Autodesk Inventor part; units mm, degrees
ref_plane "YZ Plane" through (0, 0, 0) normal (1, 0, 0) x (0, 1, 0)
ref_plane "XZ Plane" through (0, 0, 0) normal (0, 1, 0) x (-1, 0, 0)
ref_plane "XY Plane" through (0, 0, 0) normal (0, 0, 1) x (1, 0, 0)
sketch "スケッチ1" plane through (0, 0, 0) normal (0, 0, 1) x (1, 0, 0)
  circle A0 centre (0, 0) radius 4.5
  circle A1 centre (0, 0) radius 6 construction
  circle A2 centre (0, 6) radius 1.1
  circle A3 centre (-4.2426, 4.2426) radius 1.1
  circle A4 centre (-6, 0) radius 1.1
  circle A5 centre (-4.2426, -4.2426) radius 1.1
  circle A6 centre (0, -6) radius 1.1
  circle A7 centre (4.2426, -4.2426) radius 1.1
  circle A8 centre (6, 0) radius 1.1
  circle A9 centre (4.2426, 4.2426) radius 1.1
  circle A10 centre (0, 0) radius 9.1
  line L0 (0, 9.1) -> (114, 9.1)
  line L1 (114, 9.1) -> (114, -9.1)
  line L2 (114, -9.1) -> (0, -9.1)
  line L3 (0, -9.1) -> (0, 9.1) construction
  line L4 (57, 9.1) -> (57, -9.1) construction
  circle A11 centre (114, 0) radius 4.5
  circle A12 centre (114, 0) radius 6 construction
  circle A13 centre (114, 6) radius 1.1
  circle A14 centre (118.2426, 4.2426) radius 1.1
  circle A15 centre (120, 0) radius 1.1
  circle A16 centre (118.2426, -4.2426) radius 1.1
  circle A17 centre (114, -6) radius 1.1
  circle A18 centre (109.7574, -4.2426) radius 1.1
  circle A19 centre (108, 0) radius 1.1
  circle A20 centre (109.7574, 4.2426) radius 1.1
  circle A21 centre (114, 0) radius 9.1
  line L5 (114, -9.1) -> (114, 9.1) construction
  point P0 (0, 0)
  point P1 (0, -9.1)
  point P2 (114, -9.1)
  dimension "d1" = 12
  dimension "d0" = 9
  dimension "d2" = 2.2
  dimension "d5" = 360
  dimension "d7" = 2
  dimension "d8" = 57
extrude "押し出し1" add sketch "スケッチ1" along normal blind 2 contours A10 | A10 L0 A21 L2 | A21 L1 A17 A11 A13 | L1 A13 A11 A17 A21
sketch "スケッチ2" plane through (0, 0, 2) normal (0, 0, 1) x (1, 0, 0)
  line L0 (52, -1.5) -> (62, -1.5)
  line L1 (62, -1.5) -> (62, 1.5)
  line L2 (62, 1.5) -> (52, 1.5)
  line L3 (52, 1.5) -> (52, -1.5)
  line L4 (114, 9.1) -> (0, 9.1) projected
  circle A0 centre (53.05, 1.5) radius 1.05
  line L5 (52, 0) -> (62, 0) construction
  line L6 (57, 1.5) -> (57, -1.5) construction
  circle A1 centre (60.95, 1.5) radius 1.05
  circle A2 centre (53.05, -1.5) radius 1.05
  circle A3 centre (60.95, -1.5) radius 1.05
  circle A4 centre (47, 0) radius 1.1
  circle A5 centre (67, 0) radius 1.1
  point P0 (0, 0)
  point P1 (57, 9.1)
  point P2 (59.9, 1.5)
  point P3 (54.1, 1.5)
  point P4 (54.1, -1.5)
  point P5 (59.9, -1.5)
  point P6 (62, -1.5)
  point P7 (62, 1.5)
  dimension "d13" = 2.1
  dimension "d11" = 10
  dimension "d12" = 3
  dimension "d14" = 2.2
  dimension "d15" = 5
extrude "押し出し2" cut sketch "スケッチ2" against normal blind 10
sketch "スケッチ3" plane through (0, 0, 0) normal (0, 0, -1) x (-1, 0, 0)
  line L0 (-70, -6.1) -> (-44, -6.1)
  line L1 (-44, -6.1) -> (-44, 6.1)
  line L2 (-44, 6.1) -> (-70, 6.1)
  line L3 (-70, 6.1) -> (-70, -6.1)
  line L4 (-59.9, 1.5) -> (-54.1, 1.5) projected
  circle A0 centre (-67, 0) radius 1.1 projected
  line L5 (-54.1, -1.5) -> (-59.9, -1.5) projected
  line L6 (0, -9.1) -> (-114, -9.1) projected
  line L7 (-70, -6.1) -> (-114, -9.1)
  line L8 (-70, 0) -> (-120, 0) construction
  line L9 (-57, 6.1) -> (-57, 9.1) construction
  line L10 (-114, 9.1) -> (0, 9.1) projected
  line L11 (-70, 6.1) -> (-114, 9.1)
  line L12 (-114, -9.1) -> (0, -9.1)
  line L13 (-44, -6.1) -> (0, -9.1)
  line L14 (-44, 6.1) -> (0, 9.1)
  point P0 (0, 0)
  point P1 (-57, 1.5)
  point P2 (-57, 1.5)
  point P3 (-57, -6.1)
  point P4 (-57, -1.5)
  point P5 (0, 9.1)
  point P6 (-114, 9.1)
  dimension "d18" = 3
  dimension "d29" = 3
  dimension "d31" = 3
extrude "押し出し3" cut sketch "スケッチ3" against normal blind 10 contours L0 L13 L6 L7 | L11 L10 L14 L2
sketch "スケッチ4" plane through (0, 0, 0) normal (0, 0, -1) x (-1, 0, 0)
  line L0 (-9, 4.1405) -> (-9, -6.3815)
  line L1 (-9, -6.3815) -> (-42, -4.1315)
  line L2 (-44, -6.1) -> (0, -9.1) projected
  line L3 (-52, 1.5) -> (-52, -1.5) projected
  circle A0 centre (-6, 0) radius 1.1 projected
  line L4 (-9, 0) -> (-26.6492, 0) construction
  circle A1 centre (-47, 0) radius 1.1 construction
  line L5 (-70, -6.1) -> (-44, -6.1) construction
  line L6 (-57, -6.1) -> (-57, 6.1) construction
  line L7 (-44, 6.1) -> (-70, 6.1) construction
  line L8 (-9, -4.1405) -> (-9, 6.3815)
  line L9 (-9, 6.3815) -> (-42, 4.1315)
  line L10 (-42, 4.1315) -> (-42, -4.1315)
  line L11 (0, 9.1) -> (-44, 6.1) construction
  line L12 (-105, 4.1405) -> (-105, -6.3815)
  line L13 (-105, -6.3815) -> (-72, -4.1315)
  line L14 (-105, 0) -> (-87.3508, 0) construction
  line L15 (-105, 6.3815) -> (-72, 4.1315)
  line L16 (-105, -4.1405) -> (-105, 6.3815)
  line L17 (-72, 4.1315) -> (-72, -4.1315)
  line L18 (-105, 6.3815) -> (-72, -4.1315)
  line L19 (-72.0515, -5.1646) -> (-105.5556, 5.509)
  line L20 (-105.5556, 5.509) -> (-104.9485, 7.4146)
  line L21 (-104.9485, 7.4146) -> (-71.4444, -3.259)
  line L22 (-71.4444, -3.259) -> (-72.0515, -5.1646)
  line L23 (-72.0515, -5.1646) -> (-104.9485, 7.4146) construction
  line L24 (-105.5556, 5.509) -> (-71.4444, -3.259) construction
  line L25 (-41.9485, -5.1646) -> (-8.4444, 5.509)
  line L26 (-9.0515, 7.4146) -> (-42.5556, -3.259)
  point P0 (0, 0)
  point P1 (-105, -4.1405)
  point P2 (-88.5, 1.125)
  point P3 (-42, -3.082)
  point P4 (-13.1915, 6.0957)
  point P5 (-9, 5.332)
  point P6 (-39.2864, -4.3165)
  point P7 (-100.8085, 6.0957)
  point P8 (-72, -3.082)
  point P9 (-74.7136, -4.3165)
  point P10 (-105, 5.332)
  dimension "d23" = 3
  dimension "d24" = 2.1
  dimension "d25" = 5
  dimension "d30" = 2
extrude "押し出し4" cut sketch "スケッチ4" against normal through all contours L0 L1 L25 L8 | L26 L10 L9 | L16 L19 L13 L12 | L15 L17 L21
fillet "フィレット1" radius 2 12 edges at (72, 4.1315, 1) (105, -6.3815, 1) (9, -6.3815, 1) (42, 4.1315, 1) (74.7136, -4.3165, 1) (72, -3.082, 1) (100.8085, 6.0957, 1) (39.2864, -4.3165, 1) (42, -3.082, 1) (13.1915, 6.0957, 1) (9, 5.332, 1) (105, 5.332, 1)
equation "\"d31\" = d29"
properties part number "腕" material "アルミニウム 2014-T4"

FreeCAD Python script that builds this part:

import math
import FreeCAD as App
import Part
import Sketcher
from FreeCAD import Vector
Q = App.Units.Quantity


def edges_at(feature, points):
    """Names of the edges that pass closest to the given points."""
    edges = feature.Shape.Edges
    near = lambda p: min(range(len(edges)), key=lambda i: edges[i].distToShape(Part.Vertex(*p))[0])
    return sorted({f"Edge{near(p) + 1}" for p in points})

doc = App.newDocument("Part")
params = doc.addObject("Spreadsheet::Sheet", "Params")
for row, (alias, value) in enumerate([
    ("sketch1_diameter", "9 mm"),
    ("sketch1_diameter2", "2.2 mm"),
    ("sketch1_radius", "9.1 mm"),
    ("sketch1_width", "114 mm"),
    ("pad1_length", "2 mm"),
    ("sketch2_diameter", "2.2 mm"),
    ("sketch2_height", "3 mm"),
    ("sketch2_radius", "1.05 mm"),
    ("sketch2_width", "5.8 mm"),
    ("pocket1_length", "10 mm"),
    ("sketch3_width", "26 mm"),
    ("sketch3_width2", "114 mm"),
    ("pocket2_length", "10 mm"),
    ("fillet_radius", "2 mm"),
], start=1):
    params.set(f"A{row}", alias)
    params.set(f"B{row}", "=" + value)
    params.setAlias(f"B{row}", alias)

body = doc.addObject("PartDesign::Body", "Body")

# Sketch on XY plane
sketch1 = body.newObject("Sketcher::SketchObject", "Sketch")
sketch1.AttachmentSupport = (doc.getObject("XY_Plane"), [""])
sketch1.MapMode = "FlatFace"
sketch1.addGeometry(Part.ArcOfCircle(Part.Circle(Vector(0, 0, 0), Vector(0, 0, 1), 9.1), math.radians(90), math.radians(270)), False)
sketch1.addGeometry(Part.LineSegment(Vector(0, -9.1, 0), Vector(114, -9.1, 0)), False)
sketch1.addGeometry(Part.ArcOfCircle(Part.Circle(Vector(114, 0, 0), Vector(0, 0, 1), 9.1), math.radians(-90), math.radians(90)), False)
sketch1.addGeometry(Part.LineSegment(Vector(114, 9.1, 0), Vector(0, 9.1, 0)), False)
sketch1.addGeometry(Part.Circle(Vector(0, -6, 0), Vector(0, 0, 1), 1.1), False)
sketch1.addGeometry(Part.Circle(Vector(-4.2, -4.2, 0), Vector(0, 0, 1), 1.1), False)
sketch1.addGeometry(Part.Circle(Vector(4.2, -4.2, 0), Vector(0, 0, 1), 1.1), False)
sketch1.addGeometry(Part.Circle(Vector(-6, 0, 0), Vector(0, 0, 1), 1.1), False)
sketch1.addGeometry(Part.Circle(Vector(0, 0, 0), Vector(0, 0, 1), 4.5), False)
sketch1.addGeometry(Part.Circle(Vector(6, 0, 0), Vector(0, 0, 1), 1.1), False)
sketch1.addGeometry(Part.Circle(Vector(-4.2, 4.2, 0), Vector(0, 0, 1), 1.1), False)
sketch1.addGeometry(Part.Circle(Vector(4.2, 4.2, 0), Vector(0, 0, 1), 1.1), False)
sketch1.addGeometry(Part.Circle(Vector(0, 6, 0), Vector(0, 0, 1), 1.1), False)
sketch1.addGeometry(Part.Circle(Vector(114, 6, 0), Vector(0, 0, 1), 1.1), False)
sketch1.addGeometry(Part.Circle(Vector(114, 0, 0), Vector(0, 0, 1), 4.5), False)
sketch1.addGeometry(Part.Circle(Vector(114, -6, 0), Vector(0, 0, 1), 1.1), False)
sketch1.addGeometry(Part.Circle(Vector(109.8, 4.2, 0), Vector(0, 0, 1), 1.1), False)
sketch1.addGeometry(Part.Circle(Vector(109.8, -4.2, 0), Vector(0, 0, 1), 1.1), False)
sketch1.addGeometry(Part.Circle(Vector(108, 0, 0), Vector(0, 0, 1), 1.1), False)
sketch1.addGeometry(Part.Circle(Vector(118.2, 4.2, 0), Vector(0, 0, 1), 1.1), False)
sketch1.addGeometry(Part.Circle(Vector(118.2, -4.2, 0), Vector(0, 0, 1), 1.1), False)
sketch1.addGeometry(Part.Circle(Vector(120, 0, 0), Vector(0, 0, 1), 1.1), False)
sketch1.addConstraint(Sketcher.Constraint("Tangent", 0, 2, 1, 1))
sketch1.addConstraint(Sketcher.Constraint("Tangent", 1, 2, 2, 1))
sketch1.addConstraint(Sketcher.Constraint("Tangent", 2, 2, 3, 1))
sketch1.addConstraint(Sketcher.Constraint("Tangent", 3, 2, 0, 1))
sketch1.addConstraint(Sketcher.Constraint("Horizontal", 1))
sketch1.addConstraint(Sketcher.Constraint("Horizontal", 3))
sketch1.addConstraint(Sketcher.Constraint("Coincident", 0, 3, -1, 1))
sketch1.addConstraint(Sketcher.Constraint("Coincident", 8, 3, -1, 1))
sketch1.addConstraint(Sketcher.Constraint("Coincident", 14, 3, 2, 3))
sketch1.addConstraint(Sketcher.Constraint("Equal", 4, 5))
sketch1.addConstraint(Sketcher.Constraint("Equal", 5, 6))
sketch1.addConstraint(Sketcher.Constraint("Equal", 6, 7))
sketch1.addConstraint(Sketcher.Constraint("Equal", 7, 9))
sketch1.addConstraint(Sketcher.Constraint("Equal", 9, 10))
sketch1.addConstraint(Sketcher.Constraint("Equal", 10, 11))
sketch1.addConstraint(Sketcher.Constraint("Equal", 11, 12))
sketch1.addConstraint(Sketcher.Constraint("Equal", 12, 13))
sketch1.addConstraint(Sketcher.Constraint("Equal", 8, 14))
sketch1.addConstraint(Sketcher.Constraint("Equal", 13, 15))
sketch1.addConstraint(Sketcher.Constraint("Equal", 15, 16))
sketch1.addConstraint(Sketcher.Constraint("Equal", 16, 17))
sketch1.addConstraint(Sketcher.Constraint("Equal", 17, 18))
sketch1.addConstraint(Sketcher.Constraint("Equal", 18, 19))
sketch1.addConstraint(Sketcher.Constraint("Equal", 19, 20))
sketch1.addConstraint(Sketcher.Constraint("Equal", 20, 21))
sketch1.addConstraint(Sketcher.Constraint("Symmetric", 7, 3, 9, 3, -1, 1))
sketch1.addConstraint(Sketcher.Constraint("Symmetric", 6, 3, 10, 3, -1, 1))
sketch1.addConstraint(Sketcher.Constraint("Symmetric", 5, 3, 11, 3, -1, 1))
sketch1.addConstraint(Sketcher.Constraint("Symmetric", 4, 3, 12, 3, -1, 1))
sketch1.addConstraint(Sketcher.Constraint("Symmetric", 5, 3, 6, 3, -2))
sketch1.addConstraint(Sketcher.Constraint("Symmetric", 13, 3, 15, 3, -1))
sketch1.addConstraint(Sketcher.Constraint("Symmetric", 16, 3, 17, 3, -1))
sketch1.addConstraint(Sketcher.Constraint("Symmetric", 19, 3, 20, 3, -1))
sketch1.addConstraint(Sketcher.Constraint("PointOnObject", 4, 3, -2))
sketch1.addConstraint(Sketcher.Constraint("PointOnObject", 7, 3, -1))
sketch1.addConstraint(Sketcher.Constraint("PointOnObject", 18, 3, -1))
sketch1.addConstraint(Sketcher.Constraint("PointOnObject", 21, 3, -1))
sketch1.addConstraint(Sketcher.Constraint("Horizontal", 12, 3, 13, 3))
sketch1.addConstraint(Sketcher.Constraint("Horizontal", 11, 3, 16, 3))
sketch1.addConstraint(Sketcher.Constraint("Horizontal", 16, 3, 19, 3))
sketch1.addConstraint(Sketcher.Constraint("Vertical", 2, 3, 13, 3))
sketch1.addConstraint(Sketcher.Constraint("Diameter", 8, Q("9 mm")))
sketch1.addConstraint(Sketcher.Constraint("Diameter", 4, Q("2.2 mm")))
sketch1.addConstraint(Sketcher.Constraint("DistanceY", 15, 3, 13, 3, Q("12 mm")))
sketch1.addConstraint(Sketcher.Constraint("Radius", 0, Q("9.1 mm")))
sketch1.addConstraint(Sketcher.Constraint("DistanceX", 1, 1, 1, 2, Q("114 mm")))
sketch1.addConstraint(Sketcher.Constraint("DistanceX", 7, 3, -1, 1, Q("6 mm")))
sketch1.addConstraint(Sketcher.Constraint("DistanceX", -1, 1, 18, 3, Q("108 mm")))
sketch1.addConstraint(Sketcher.Constraint("DistanceX", -1, 1, 21, 3, Q("120 mm")))
sketch1.addConstraint(Sketcher.Constraint("DistanceX", 5, 3, -1, 1, Q("4.2426 mm")))
sketch1.addConstraint(Sketcher.Constraint("DistanceY", 5, 3, -1, 1, Q("4.2426 mm")))
sketch1.addConstraint(Sketcher.Constraint("DistanceX", -1, 1, 16, 3, Q("109.7574 mm")))
sketch1.addConstraint(Sketcher.Constraint("DistanceX", -1, 1, 19, 3, Q("118.2426 mm")))
sketch1.setExpression("Constraints[41]", "Params.sketch1_diameter")
sketch1.setExpression("Constraints[42]", "Params.sketch1_diameter2")
sketch1.setExpression("Constraints[44]", "Params.sketch1_radius")
sketch1.setExpression("Constraints[45]", "Params.sketch1_width")
pad1 = body.newObject("PartDesign::Pad", "Pad")
pad1.Profile = sketch1
pad1.setExpression("Length", "Params.pad1_length")

# Sketch on XY plane
sketch2 = body.newObject("Sketcher::SketchObject", "Sketch001")
sketch2.AttachmentSupport = (doc.getObject("XY_Plane"), [""])
sketch2.MapMode = "FlatFace"
sketch2.AttachmentOffset = App.Placement(Vector(0, 0, 2), App.Rotation())
sketch2.addGeometry(Part.LineSegment(Vector(52, 1.5, 0), Vector(52, -1.5, 0)), False)
sketch2.addGeometry(Part.ArcOfCircle(Part.Circle(Vector(53, -1.5, 0), Vector(0, 0, 1), 1.1), math.radians(180), math.radians(360)), False)
sketch2.addGeometry(Part.LineSegment(Vector(54.1, -1.5, 0), Vector(59.9, -1.5, 0)), False)
sketch2.addGeometry(Part.ArcOfCircle(Part.Circle(Vector(61, -1.5, 0), Vector(0, 0, 1), 1.1), math.radians(180), math.radians(360)), False)
sketch2.addGeometry(Part.LineSegment(Vector(62, -1.5, 0), Vector(62, 1.5, 0)), False)
sketch2.addGeometry(Part.ArcOfCircle(Part.Circle(Vector(61, 1.5, 0), Vector(0, 0, 1), 1.1), math.radians(0), math.radians(180)), False)
sketch2.addGeometry(Part.LineSegment(Vector(59.9, 1.5, 0), Vector(54.1, 1.5, 0)), False)
sketch2.addGeometry(Part.ArcOfCircle(Part.Circle(Vector(53, 1.5, 0), Vector(0, 0, 1), 1.1), math.radians(0), math.radians(180)), False)
sketch2.addGeometry(Part.Circle(Vector(47, 0, 0), Vector(0, 0, 1), 1.1), False)
sketch2.addGeometry(Part.Circle(Vector(67, 0, 0), Vector(0, 0, 1), 1.1), False)
sketch2.addConstraint(Sketcher.Constraint("Tangent", 0, 2, 1, 1))
sketch2.addConstraint(Sketcher.Constraint("Coincident", 1, 2, 2, 1))
sketch2.addConstraint(Sketcher.Constraint("Coincident", 2, 2, 3, 1))
sketch2.addConstraint(Sketcher.Constraint("Tangent", 3, 2, 4, 1))
sketch2.addConstraint(Sketcher.Constraint("Tangent", 4, 2, 5, 1))
sketch2.addConstraint(Sketcher.Constraint("Coincident", 5, 2, 6, 1))
sketch2.addConstraint(Sketcher.Constraint("Coincident", 6, 2, 7, 1))
sketch2.addConstraint(Sketcher.Constraint("Tangent", 7, 2, 0, 1))
sketch2.addConstraint(Sketcher.Constraint("Vertical", 0))
sketch2.addConstraint(Sketcher.Constraint("Horizontal", 2))
sketch2.addConstraint(Sketcher.Constraint("Vertical", 4))
sketch2.addConstraint(Sketcher.Constraint("Horizontal", 6))
sketch2.addConstraint(Sketcher.Constraint("Equal", 1, 3))
sketch2.addConstraint(Sketcher.Constraint("Equal", 3, 5))
sketch2.addConstraint(Sketcher.Constraint("Equal", 5, 7))
sketch2.addConstraint(Sketcher.Constraint("Equal", 8, 9))
sketch2.addConstraint(Sketcher.Constraint("PointOnObject", 8, 3, -1))
sketch2.addConstraint(Sketcher.Constraint("PointOnObject", 9, 3, -1))
sketch2.addConstraint(Sketcher.Constraint("Horizontal", 1, 3, 3, 3))
sketch2.addConstraint(Sketcher.Constraint("Horizontal", 5, 3, 7, 3))
sketch2.addConstraint(Sketcher.Constraint("Horizontal", 0, 2, 1, 2))
sketch2.addConstraint(Sketcher.Constraint("Horizontal", 4, 2, 5, 2))
sketch2.addConstraint(Sketcher.Constraint("Diameter", 8, Q("2.2 mm")))
sketch2.addConstraint(Sketcher.Constraint("DistanceY", 0, 2, 0, 1, Q("3 mm")))
sketch2.addConstraint(Sketcher.Constraint("Radius", 1, Q("1.05 mm")))
sketch2.addConstraint(Sketcher.Constraint("DistanceX", 8, 3, 0, 2, Q("5 mm")))
sketch2.addConstraint(Sketcher.Constraint("DistanceX", 3, 2, 9, 3, Q("5 mm")))
sketch2.addConstraint(Sketcher.Constraint("DistanceX", 2, 1, 2, 2, Q("5.8 mm")))
sketch2.addConstraint(Sketcher.Constraint("DistanceX", -1, 1, 8, 3, Q("47 mm")))
sketch2.addConstraint(Sketcher.Constraint("DistanceY", 1, 3, -1, 1, Q("1.5 mm")))
sketch2.setExpression("Constraints[22]", "Params.sketch2_diameter")
sketch2.setExpression("Constraints[23]", "Params.sketch2_height")
sketch2.setExpression("Constraints[24]", "Params.sketch2_radius")
sketch2.setExpression("Constraints[27]", "Params.sketch2_width")
pocket1 = body.newObject("PartDesign::Pocket", "Pocket")
pocket1.Profile = sketch2
pocket1.setExpression("Length", "Params.pocket1_length")

# Sketch on XY plane
sketch3 = body.newObject("Sketcher::SketchObject", "Sketch002")
sketch3.AttachmentSupport = (doc.getObject("XY_Plane"), [""])
sketch3.MapMode = "FlatFace"
sketch3.addGeometry(Part.LineSegment(Vector(44, -6, 0), Vector(70, -6, 0)), False)
sketch3.addGeometry(Part.LineSegment(Vector(70, -6, 0), Vector(114, -9, 0)), False)
sketch3.addGeometry(Part.LineSegment(Vector(114, -9, 0), Vector(0, -9, 0)), False)
sketch3.addGeometry(Part.LineSegment(Vector(0, -9, 0), Vector(44, -6, 0)), False)
sketch3.addGeometry(Part.LineSegment(Vector(114, 9, 0), Vector(70, 6, 0)), False)
sketch3.addGeometry(Part.LineSegment(Vector(70, 6, 0), Vector(44, 6, 0)), False)
sketch3.addGeometry(Part.LineSegment(Vector(44, 6, 0), Vector(0, 9, 0)), False)
sketch3.addGeometry(Part.LineSegment(Vector(0, 9, 0), Vector(114, 9, 0)), False)
sketch3.addConstraint(Sketcher.Constraint("Coincident", 0, 2, 1, 1))
sketch3.addConstraint(Sketcher.Constraint("Coincident", 1, 2, 2, 1))
sketch3.addConstraint(Sketcher.Constraint("Coincident", 2, 2, 3, 1))
sketch3.addConstraint(Sketcher.Constraint("Coincident", 3, 2, 0, 1))
sketch3.addConstraint(Sketcher.Constraint("Coincident", 4, 2, 5, 1))
sketch3.addConstraint(Sketcher.Constraint("Coincident", 5, 2, 6, 1))
sketch3.addConstraint(Sketcher.Constraint("Coincident", 6, 2, 7, 1))
sketch3.addConstraint(Sketcher.Constraint("Coincident", 7, 2, 4, 1))
sketch3.addConstraint(Sketcher.Constraint("Horizontal", 0))
sketch3.addConstraint(Sketcher.Constraint("Horizontal", 2))
sketch3.addConstraint(Sketcher.Constraint("Horizontal", 5))
sketch3.addConstraint(Sketcher.Constraint("Horizontal", 7))
sketch3.addConstraint(Sketcher.Constraint("Symmetric", 2, 2, 6, 2, -1, 1))
sketch3.addConstraint(Sketcher.Constraint("Symmetric", 0, 2, 4, 2, -1))
sketch3.addConstraint(Sketcher.Constraint("PointOnObject", 2, 2, -2))
sketch3.addConstraint(Sketcher.Constraint("Parallel", 3, 4))
sketch3.addConstraint(Sketcher.Constraint("Parallel", 1, 6))
sketch3.addConstraint(Sketcher.Constraint("Vertical", 3, 2, 5, 2))
sketch3.addConstraint(Sketcher.Constraint("DistanceY", 1, 2, 0, 2, Q("3 mm")))
sketch3.addConstraint(Sketcher.Constraint("DistanceX", 0, 1, 0, 2, Q("26 mm")))
sketch3.addConstraint(Sketcher.Constraint("DistanceX", 2, 2, 2, 1, Q("114 mm")))
sketch3.addConstraint(Sketcher.Constraint("DistanceY", 0, 2, -1, 1, Q("6.1 mm")))
sketch3.setExpression("Constraints[19]", "Params.sketch3_width")
sketch3.setExpression("Constraints[20]", "Params.sketch3_width2")
pocket2 = body.newObject("PartDesign::Pocket", "Pocket001")
pocket2.Profile = sketch3
pocket2.setExpression("Length", "Params.pocket2_length")
pocket2.Reversed = True

# Sketch on XY plane
sketch4 = body.newObject("Sketcher::SketchObject", "Sketch003")
sketch4.AttachmentSupport = (doc.getObject("XY_Plane"), [""])
sketch4.MapMode = "FlatFace"
sketch4.addGeometry(Part.LineSegment(Vector(9, -6, 0), Vector(9, 5, 0)), False)
sketch4.addGeometry(Part.LineSegment(Vector(9, 5, 0), Vector(39, -4, 0)), False)
sketch4.addGeometry(Part.LineSegment(Vector(39, -4, 0), Vector(9, -6, 0)), False)
sketch4.addGeometry(Part.LineSegment(Vector(42, -3, 0), Vector(13, 6, 0)), False)
sketch4.addGeometry(Part.LineSegment(Vector(13, 6, 0), Vector(42, 4, 0)), False)
sketch4.addGeometry(Part.LineSegment(Vector(42, 4, 0), Vector(42, -3, 0)), False)
sketch4.addGeometry(Part.LineSegment(Vector(105, 5, 0), Vector(105, -6, 0)), False)
sketch4.addGeometry(Part.LineSegment(Vector(105, -6, 0), Vector(75, -4, 0)), False)
sketch4.addGeometry(Part.LineSegment(Vector(75, -4, 0), Vector(105, 5, 0)), False)
sketch4.addGeometry(Part.LineSegment(Vector(72, 4, 0), Vector(101, 6, 0)), False)
sketch4.addGeometry(Part.LineSegment(Vector(101, 6, 0), Vector(72, -3, 0)), False)
sketch4.addGeometry(Part.LineSegment(Vector(72, -3, 0), Vector(72, 4, 0)), False)
sketch4.addConstraint(Sketcher.Constraint("Coincident", 0, 2, 1, 1))
sketch4.addConstraint(Sketcher.Constraint("Coincident", 1, 2, 2, 1))
sketch4.addConstraint(Sketcher.Constraint("Coincident", 2, 2, 0, 1))
sketch4.addConstraint(Sketcher.Constraint("Coincident", 3, 2, 4, 1))
sketch4.addConstraint(Sketcher.Constraint("Coincident", 4, 2, 5, 1))
sketch4.addConstraint(Sketcher.Constraint("Coincident", 5, 2, 3, 1))
sketch4.addConstraint(Sketcher.Constraint("Coincident", 6, 2, 7, 1))
sketch4.addConstraint(Sketcher.Constraint("Coincident", 7, 2, 8, 1))
sketch4.addConstraint(Sketcher.Constraint("Coincident", 8, 2, 6, 1))
sketch4.addConstraint(Sketcher.Constraint("Coincident", 9, 2, 10, 1))
sketch4.addConstraint(Sketcher.Constraint("Coincident", 10, 2, 11, 1))
sketch4.addConstraint(Sketcher.Constraint("Coincident", 11, 2, 9, 1))
sketch4.addConstraint(Sketcher.Constraint("Vertical", 0))
sketch4.addConstraint(Sketcher.Constraint("Vertical", 5))
sketch4.addConstraint(Sketcher.Constraint("Vertical", 6))
sketch4.addConstraint(Sketcher.Constraint("Vertical", 11))
sketch4.addConstraint(Sketcher.Constraint("Parallel", 1, 3))
sketch4.addConstraint(Sketcher.Constraint("Parallel", 4, 7))
sketch4.addConstraint(Sketcher.Constraint("Parallel", 2, 9))
sketch4.addConstraint(Sketcher.Constraint("Parallel", 8, 10))
sketch4.addConstraint(Sketcher.Constraint("Horizontal", 2, 2, 6, 2))
sketch4.addConstraint(Sketcher.Constraint("Horizontal", 1, 2, 7, 2))
sketch4.addConstraint(Sketcher.Constraint("Horizontal", 0, 2, 8, 2))
sketch4.addConstraint(Sketcher.Constraint("Horizontal", 3, 2, 9, 2))
sketch4.addConstraint(Sketcher.Constraint("Horizontal", 5, 2, 10, 2))
sketch4.addConstraint(Sketcher.Constraint("Horizontal", 4, 2, 11, 2))
sketch4.addConstraint(Sketcher.Constraint("DistanceX", -1, 1, 0, 2, Q("9 mm")))
sketch4.addConstraint(Sketcher.Constraint("DistanceX", -1, 1, 4, 2, Q("42 mm")))
sketch4.addConstraint(Sketcher.Constraint("DistanceX", -1, 1, 6, 2, Q("105 mm")))
sketch4.addConstraint(Sketcher.Constraint("DistanceX", -1, 1, 10, 2, Q("72 mm")))
sketch4.addConstraint(Sketcher.Constraint("Angle", 2, Q("-176.0995 deg")))
sketch4.addConstraint(Sketcher.Constraint("Angle", 1, Q("-17.6706 deg")))
sketch4.addConstraint(Sketcher.Constraint("DistanceY", 0, 1, 0, 2, Q("11.7135 mm")))
sketch4.addConstraint(Sketcher.Constraint("DistanceY", 5, 2, 5, 1, Q("7.2135 mm")))
sketch4.addConstraint(Sketcher.Constraint("DistanceY", -1, 1, 0, 2, Q("5.332 mm")))
sketch4.addConstraint(Sketcher.Constraint("DistanceY", 5, 2, -1, 1, Q("3.082 mm")))
pocket3 = body.newObject("PartDesign::Pocket", "Pocket002")
pocket3.Profile = sketch4
pocket3.Type = "ThroughAll"
pocket3.Reversed = True
doc.recompute()

fillet = body.newObject("PartDesign::Fillet", "Fillet")
fillet.Base = (pocket3, edges_at(pocket3, [
    (72, 4.131, 1),
    (105, -6.381, 1),
    (9, -6.381, 1),
    (42, 4.131, 1),
    (74.714, -4.316, 1),
    (72, -3.082, 1),
    (100.808, 6.096, 1),
    (39.286, -4.316, 1),
    (42, -3.082, 1),
    (13.191, 6.096, 1),
    (9, 5.332, 1),
    (105, 5.332, 1),
]))
fillet.setExpression("Radius", "Params.fillet_radius")

doc.recompute()
